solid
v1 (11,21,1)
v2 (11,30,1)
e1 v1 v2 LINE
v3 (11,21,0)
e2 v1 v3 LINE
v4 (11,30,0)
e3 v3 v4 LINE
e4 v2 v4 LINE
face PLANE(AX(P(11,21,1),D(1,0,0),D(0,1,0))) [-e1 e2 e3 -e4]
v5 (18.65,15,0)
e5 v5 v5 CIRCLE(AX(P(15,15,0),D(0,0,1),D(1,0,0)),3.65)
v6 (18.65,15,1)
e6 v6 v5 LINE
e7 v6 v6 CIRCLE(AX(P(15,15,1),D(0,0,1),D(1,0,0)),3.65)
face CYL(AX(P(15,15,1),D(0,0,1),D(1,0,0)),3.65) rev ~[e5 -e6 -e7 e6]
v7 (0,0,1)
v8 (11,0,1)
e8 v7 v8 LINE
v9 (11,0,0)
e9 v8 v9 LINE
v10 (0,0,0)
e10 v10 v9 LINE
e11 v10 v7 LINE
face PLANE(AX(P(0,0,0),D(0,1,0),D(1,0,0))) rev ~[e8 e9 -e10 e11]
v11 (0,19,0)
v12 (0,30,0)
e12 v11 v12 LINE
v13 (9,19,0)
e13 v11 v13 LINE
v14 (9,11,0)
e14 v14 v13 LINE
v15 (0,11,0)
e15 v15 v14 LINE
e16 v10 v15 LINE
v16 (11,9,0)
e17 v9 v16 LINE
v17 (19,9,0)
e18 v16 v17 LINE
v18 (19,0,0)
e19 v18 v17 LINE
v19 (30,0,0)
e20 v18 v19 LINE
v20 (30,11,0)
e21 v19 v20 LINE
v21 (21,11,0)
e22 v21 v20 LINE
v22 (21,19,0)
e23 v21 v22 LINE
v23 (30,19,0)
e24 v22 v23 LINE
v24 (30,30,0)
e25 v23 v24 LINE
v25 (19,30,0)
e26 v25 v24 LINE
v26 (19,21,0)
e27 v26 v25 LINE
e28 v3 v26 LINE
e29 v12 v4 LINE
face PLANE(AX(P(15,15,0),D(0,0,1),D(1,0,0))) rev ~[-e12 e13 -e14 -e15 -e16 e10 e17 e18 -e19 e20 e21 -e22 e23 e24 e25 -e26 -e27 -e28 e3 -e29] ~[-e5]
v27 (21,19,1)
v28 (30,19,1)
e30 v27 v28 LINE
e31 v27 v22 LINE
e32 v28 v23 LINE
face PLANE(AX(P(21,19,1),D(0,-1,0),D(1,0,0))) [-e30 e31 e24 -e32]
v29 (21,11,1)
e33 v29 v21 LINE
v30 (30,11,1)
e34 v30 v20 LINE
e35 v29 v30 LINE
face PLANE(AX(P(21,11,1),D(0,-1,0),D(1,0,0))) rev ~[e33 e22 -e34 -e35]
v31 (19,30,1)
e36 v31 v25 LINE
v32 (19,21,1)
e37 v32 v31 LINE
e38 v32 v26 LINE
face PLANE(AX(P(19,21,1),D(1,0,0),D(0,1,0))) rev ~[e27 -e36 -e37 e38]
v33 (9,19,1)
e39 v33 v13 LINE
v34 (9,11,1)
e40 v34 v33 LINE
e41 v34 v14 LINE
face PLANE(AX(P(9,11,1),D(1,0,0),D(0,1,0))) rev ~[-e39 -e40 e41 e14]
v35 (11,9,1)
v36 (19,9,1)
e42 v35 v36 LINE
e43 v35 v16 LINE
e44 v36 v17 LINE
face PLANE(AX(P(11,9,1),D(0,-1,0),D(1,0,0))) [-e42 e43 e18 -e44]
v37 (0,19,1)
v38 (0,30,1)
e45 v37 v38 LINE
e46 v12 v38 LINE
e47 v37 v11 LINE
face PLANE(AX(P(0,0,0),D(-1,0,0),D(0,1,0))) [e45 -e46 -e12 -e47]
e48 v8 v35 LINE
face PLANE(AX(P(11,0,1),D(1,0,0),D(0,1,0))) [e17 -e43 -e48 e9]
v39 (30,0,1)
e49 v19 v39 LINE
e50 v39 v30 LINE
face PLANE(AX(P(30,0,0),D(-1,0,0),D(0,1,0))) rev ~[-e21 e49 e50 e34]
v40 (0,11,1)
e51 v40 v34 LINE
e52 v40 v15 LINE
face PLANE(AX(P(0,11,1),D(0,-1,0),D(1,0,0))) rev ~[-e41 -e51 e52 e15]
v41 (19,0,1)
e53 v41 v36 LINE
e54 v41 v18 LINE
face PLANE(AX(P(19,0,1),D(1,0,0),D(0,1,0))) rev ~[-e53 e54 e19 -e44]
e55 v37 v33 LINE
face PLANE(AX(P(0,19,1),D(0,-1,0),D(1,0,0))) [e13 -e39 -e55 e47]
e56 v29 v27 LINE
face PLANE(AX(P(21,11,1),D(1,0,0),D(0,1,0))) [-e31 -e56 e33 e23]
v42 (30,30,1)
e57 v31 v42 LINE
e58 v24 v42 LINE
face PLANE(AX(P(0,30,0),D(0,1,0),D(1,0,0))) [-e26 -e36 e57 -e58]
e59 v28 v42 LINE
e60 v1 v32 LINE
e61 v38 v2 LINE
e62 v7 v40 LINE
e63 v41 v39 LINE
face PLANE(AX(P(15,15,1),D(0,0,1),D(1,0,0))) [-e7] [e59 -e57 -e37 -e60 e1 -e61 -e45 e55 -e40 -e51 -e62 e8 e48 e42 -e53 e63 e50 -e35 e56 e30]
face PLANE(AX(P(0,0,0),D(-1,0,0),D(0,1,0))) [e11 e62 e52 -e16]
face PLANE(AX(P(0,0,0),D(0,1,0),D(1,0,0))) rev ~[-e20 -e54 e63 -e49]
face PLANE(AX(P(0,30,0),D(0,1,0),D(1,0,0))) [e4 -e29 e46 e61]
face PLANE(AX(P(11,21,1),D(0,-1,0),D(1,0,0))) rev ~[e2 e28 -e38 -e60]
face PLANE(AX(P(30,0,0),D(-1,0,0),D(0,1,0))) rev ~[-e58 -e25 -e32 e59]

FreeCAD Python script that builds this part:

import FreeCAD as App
import Part
import Sketcher
from FreeCAD import Vector
Q = App.Units.Quantity

doc = App.newDocument("Part")
body = doc.addObject("PartDesign::Body", "Body")

# Sketch on XY plane
sketch1 = body.newObject("Sketcher::SketchObject", "Sketch")
sketch1.AttachmentSupport = (doc.getObject("XY_Plane"), [""])
sketch1.MapMode = "FlatFace"
sketch1.addGeometry([
    Part.LineSegment(Vector(0, 30, 0), Vector(0, 0, 0)),
    Part.LineSegment(Vector(0, 0, 0), Vector(30, 0, 0)),
    Part.LineSegment(Vector(30, 0, 0), Vector(30, 30, 0)),
    Part.LineSegment(Vector(30, 30, 0), Vector(0, 30, 0)),
], False)
sketch1.addConstraint([
    Sketcher.Constraint("Coincident", 0, 2, 1, 1),
    Sketcher.Constraint("Coincident", 1, 2, 2, 1),
    Sketcher.Constraint("Coincident", 2, 2, 3, 1),
    Sketcher.Constraint("Coincident", 3, 2, 0, 1),
    Sketcher.Constraint("Vertical", 0),
    Sketcher.Constraint("Horizontal", 1),
    Sketcher.Constraint("Vertical", 2),
    Sketcher.Constraint("Horizontal", 3),
    Sketcher.Constraint("Coincident", 0, 2, -1, 1),
    Sketcher.Constraint("Equal", 3, 0),
    Sketcher.Constraint("DistanceX", 1, 1, 1, 2, Q("30 mm")),
])
pad1 = body.newObject("PartDesign::Pad", "Pad")
pad1.Profile = sketch1
pad1.Length = 1

# Sketch on XY plane
sketch2 = body.newObject("Sketcher::SketchObject", "Sketch001")
sketch2.AttachmentSupport = (doc.getObject("XY_Plane"), [""])
sketch2.MapMode = "FlatFace"
sketch2.AttachmentOffset = App.Placement(Vector(0, 0, 1), App.Rotation())
sketch2.addGeometry([
    Part.Circle(Vector(15, 15, 0), Vector(0, 0, 1), 3.6),  # 0
    Part.LineSegment(Vector(11, 30, 0), Vector(11, 21, 0)),  # 1
    Part.LineSegment(Vector(11, 21, 0), Vector(19, 21, 0)),  # 2
    Part.LineSegment(Vector(19, 21, 0), Vector(19, 30, 0)),  # 3
    Part.LineSegment(Vector(19, 30, 0), Vector(11, 30, 0)),  # 4
    Part.LineSegment(Vector(11, 9, 0), Vector(11, 0, 0)),  # 5
    Part.LineSegment(Vector(11, 0, 0), Vector(19, 0, 0)),  # 6
    Part.LineSegment(Vector(19, 0, 0), Vector(19, 9, 0)),  # 7
    Part.LineSegment(Vector(19, 9, 0), Vector(11, 9, 0)),  # 8
    Part.LineSegment(Vector(0, 19, 0), Vector(0, 11, 0)),  # 9
    Part.LineSegment(Vector(0, 11, 0), Vector(9, 11, 0)),  # 10
    Part.LineSegment(Vector(9, 11, 0), Vector(9, 19, 0)),  # 11
    Part.LineSegment(Vector(9, 19, 0), Vector(0, 19, 0)),  # 12
    Part.LineSegment(Vector(21, 19, 0), Vector(21, 11, 0)),  # 13
    Part.LineSegment(Vector(21, 11, 0), Vector(30, 11, 0)),  # 14
    Part.LineSegment(Vector(30, 11, 0), Vector(30, 19, 0)),  # 15
    Part.LineSegment(Vector(30, 19, 0), Vector(21, 19, 0)),  # 16
], False)
sketch2.addConstraint([
    Sketcher.Constraint("Coincident", 1, 2, 2, 1),
    Sketcher.Constraint("Coincident", 2, 2, 3, 1),
    Sketcher.Constraint("Coincident", 3, 2, 4, 1),
    Sketcher.Constraint("Coincident", 4, 2, 1, 1),
    Sketcher.Constraint("Coincident", 5, 2, 6, 1),
    Sketcher.Constraint("Coincident", 6, 2, 7, 1),
    Sketcher.Constraint("Coincident", 7, 2, 8, 1),
    Sketcher.Constraint("Coincident", 8, 2, 5, 1),
    Sketcher.Constraint("Coincident", 9, 2, 10, 1),
    Sketcher.Constraint("Coincident", 10, 2, 11, 1),
    Sketcher.Constraint("Coincident", 11, 2, 12, 1),
    Sketcher.Constraint("Coincident", 12, 2, 9, 1),
    Sketcher.Constraint("Coincident", 13, 2, 14, 1),
    Sketcher.Constraint("Coincident", 14, 2, 15, 1),
    Sketcher.Constraint("Coincident", 15, 2, 16, 1),
    Sketcher.Constraint("Coincident", 16, 2, 13, 1),
    Sketcher.Constraint("Vertical", 1),
    Sketcher.Constraint("Horizontal", 2),
    Sketcher.Constraint("Vertical", 3),
    Sketcher.Constraint("Horizontal", 4),
    Sketcher.Constraint("Vertical", 5),
    Sketcher.Constraint("Horizontal", 6),
    Sketcher.Constraint("Vertical", 7),
    Sketcher.Constraint("Horizontal", 8),
    Sketcher.Constraint("Vertical", 9),
    Sketcher.Constraint("Horizontal", 10),
    Sketcher.Constraint("Vertical", 11),
    Sketcher.Constraint("Horizontal", 12),
    Sketcher.Constraint("Vertical", 13),
    Sketcher.Constraint("Horizontal", 14),
    Sketcher.Constraint("Vertical", 15),
    Sketcher.Constraint("Horizontal", 16),
    Sketcher.Constraint("PointOnObject", 5, 2, -1),
    Sketcher.Constraint("PointOnObject", 9, 2, -2),
    Sketcher.Constraint("Horizontal", 10, 2, 13, 2),
    Sketcher.Constraint("Horizontal", 12, 2, 15, 2),
    Sketcher.Constraint("Vertical", 4, 2, 5, 2),
    Sketcher.Constraint("Vertical", 3, 2, 6, 2),
    Sketcher.Constraint("Equal", 12, 14),
    Sketcher.Constraint("Equal", 16, 1),
    Sketcher.Constraint("Equal", 3, 5),
    Sketcher.Constraint("Equal", 8, 9),
    Sketcher.Constraint("Diameter", 0, Q("7.3 mm")),
    Sketcher.Constraint("DistanceX", 2, 1, 2, 2, Q("8 mm")),
    Sketcher.Constraint("DistanceX", 10, 1, 10, 2, Q("9 mm")),
    Sketcher.Constraint("DistanceX", -1, 1, 0, 3, Q("15 mm")),
    Sketcher.Constraint("DistanceY", -1, 1, 0, 3, Q("15 mm")),
    Sketcher.Constraint("DistanceX", -1, 1, 1, 2, Q("11 mm")),
    Sketcher.Constraint("DistanceY", -1, 1, 1, 2, Q("21 mm")),
    Sketcher.Constraint("DistanceY", -1, 1, 9, 2, Q("11 mm")),
    Sketcher.Constraint("DistanceX", -1, 1, 13, 2, Q("21 mm")),
])
pocket1 = body.newObject("PartDesign::Pocket", "Pocket")
pocket1.Profile = sketch2
pocket1.Length = 1

doc.recompute()
